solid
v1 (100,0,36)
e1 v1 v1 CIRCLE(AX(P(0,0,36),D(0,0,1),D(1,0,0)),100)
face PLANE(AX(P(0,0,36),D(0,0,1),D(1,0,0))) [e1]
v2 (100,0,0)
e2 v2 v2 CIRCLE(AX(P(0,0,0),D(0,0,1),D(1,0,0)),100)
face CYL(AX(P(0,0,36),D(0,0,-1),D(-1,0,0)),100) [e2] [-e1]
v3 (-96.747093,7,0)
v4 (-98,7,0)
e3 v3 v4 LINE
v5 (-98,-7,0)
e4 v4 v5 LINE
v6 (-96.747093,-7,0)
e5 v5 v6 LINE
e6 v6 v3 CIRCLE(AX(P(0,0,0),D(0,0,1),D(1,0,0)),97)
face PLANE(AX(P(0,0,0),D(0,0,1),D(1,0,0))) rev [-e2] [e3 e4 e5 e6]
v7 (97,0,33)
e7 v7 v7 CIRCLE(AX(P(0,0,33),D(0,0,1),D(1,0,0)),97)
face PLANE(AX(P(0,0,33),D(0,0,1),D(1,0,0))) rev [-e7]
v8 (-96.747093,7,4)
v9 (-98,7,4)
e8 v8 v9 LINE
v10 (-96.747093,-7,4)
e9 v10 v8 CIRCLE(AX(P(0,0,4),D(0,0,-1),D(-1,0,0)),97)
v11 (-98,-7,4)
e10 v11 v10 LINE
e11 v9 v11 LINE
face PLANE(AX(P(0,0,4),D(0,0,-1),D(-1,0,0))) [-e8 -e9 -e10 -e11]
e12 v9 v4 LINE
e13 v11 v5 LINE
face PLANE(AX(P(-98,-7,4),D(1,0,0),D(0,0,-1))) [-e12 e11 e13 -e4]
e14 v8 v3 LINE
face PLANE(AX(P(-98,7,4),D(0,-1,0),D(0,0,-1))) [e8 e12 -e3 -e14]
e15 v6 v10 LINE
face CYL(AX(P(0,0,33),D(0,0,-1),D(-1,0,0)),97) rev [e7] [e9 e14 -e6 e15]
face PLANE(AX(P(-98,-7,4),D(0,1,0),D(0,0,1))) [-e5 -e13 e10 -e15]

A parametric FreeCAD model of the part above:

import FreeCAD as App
import Part
import Sketcher


def add_polygon(sketch, points):
    """Adds a closed chain of lines whose ends are joined by coincident constraints."""
    first, n = sketch.GeometryCount, len(points)
    for a, b in zip(points, points[1:] + points[:1]):
        sketch.addGeometry(Part.LineSegment(App.Vector(*a, 0), App.Vector(*b, 0)), False)
    for i in range(n):
        sketch.addConstraint(Sketcher.Constraint("Coincident", first + i, 2, first + (i + 1) % n, 1))

doc = App.newDocument("Part")
body = doc.addObject("PartDesign::Body", "Body")

sketch1 = body.newObject("Sketcher::SketchObject", "Sketch")
sketch1.AttachmentSupport = (doc.getObject("XY_Plane"), [""])
sketch1.MapMode = "FlatFace"
sketch1.addGeometry(Part.Circle(App.Vector(0, 0, 0), App.Vector(0, 0, 1), 100), False)
sketch1.addConstraint(Sketcher.Constraint("Coincident", 0, 3, -1, 1))
sketch1.addConstraint(Sketcher.Constraint("Diameter", 0, 200.0))
pad1 = body.newObject("PartDesign::Pad", "Pad")
pad1.Profile = sketch1
pad1.Length = 36

sketch2 = body.newObject("Sketcher::SketchObject", "Sketch001")
sketch2.AttachmentSupport = (doc.getObject("XY_Plane"), [""])
sketch2.MapMode = "FlatFace"
sketch2.addGeometry(Part.Circle(App.Vector(0, 0, 0), App.Vector(0, 0, 1), 97), False)
sketch2.addConstraint(Sketcher.Constraint("Coincident", 0, 3, -1, 1))
sketch2.addConstraint(Sketcher.Constraint("Diameter", 0, 194.0))
pocket1 = body.newObject("PartDesign::Pocket", "Pocket")
pocket1.Profile = sketch2
pocket1.Length = 33
pocket1.Reversed = True

sketch3 = body.newObject("Sketcher::SketchObject", "Sketch002")
sketch3.AttachmentSupport = (doc.getObject("XY_Plane"), [""])
sketch3.MapMode = "FlatFace"
sketch3.addGeometry(Part.Circle(App.Vector(110, 24.75, 0), App.Vector(0, 0, 1), 1.75), False)
sketch3.addGeometry(Part.Circle(App.Vector(110, -24.75, 0), App.Vector(0, 0, 1), 1.75), False)
sketch3.addGeometry(Part.Circle(App.Vector(110, 0, 0), App.Vector(0, 0, 1), 7), False)
add_polygon(sketch3, [(-98, 7), (-98, -7), (-88, -7), (-88, 7)])
sketch3.addConstraint(Sketcher.Constraint("Vertical", 3))
sketch3.addConstraint(Sketcher.Constraint("Horizontal", 4))
sketch3.addConstraint(Sketcher.Constraint("Vertical", 5))
sketch3.addConstraint(Sketcher.Constraint("Horizontal", 6))
sketch3.addConstraint(Sketcher.Constraint("Equal", 0, 1))
sketch3.addConstraint(Sketcher.Constraint("Symmetric", 0, 3, 1, 3, -1))
sketch3.addConstraint(Sketcher.Constraint("PointOnObject", 2, 3, -1))
sketch3.addConstraint(Sketcher.Constraint("Vertical", 1, 3, 2, 3))
sketch3.addConstraint(Sketcher.Constraint("Diameter", 2, 14.0))
sketch3.addConstraint(Sketcher.Constraint("Diameter", 0, 3.5))
sketch3.addConstraint(Sketcher.Constraint("DistanceX", 4, 1, 4, 2, 10.0))
sketch3.addConstraint(Sketcher.Constraint("DistanceY", 3, 2, 3, 1, 14.0))
sketch3.addConstraint(Sketcher.Constraint("DistanceX", -1, 1, 0, 3, 110.0))
sketch3.addConstraint(Sketcher.Constraint("DistanceX", 3, 2, -1, 1, 98.0))
sketch3.addConstraint(Sketcher.Constraint("DistanceY", 3, 2, -1, 1, 7.0))
sketch3.addConstraint(Sketcher.Constraint("DistanceY", 1, 3, 0, 3, 49.5))
pocket2 = body.newObject("PartDesign::Pocket", "Pocket001")
pocket2.Profile = sketch3
pocket2.Length = 4
pocket2.Reversed = True

doc.recompute()
